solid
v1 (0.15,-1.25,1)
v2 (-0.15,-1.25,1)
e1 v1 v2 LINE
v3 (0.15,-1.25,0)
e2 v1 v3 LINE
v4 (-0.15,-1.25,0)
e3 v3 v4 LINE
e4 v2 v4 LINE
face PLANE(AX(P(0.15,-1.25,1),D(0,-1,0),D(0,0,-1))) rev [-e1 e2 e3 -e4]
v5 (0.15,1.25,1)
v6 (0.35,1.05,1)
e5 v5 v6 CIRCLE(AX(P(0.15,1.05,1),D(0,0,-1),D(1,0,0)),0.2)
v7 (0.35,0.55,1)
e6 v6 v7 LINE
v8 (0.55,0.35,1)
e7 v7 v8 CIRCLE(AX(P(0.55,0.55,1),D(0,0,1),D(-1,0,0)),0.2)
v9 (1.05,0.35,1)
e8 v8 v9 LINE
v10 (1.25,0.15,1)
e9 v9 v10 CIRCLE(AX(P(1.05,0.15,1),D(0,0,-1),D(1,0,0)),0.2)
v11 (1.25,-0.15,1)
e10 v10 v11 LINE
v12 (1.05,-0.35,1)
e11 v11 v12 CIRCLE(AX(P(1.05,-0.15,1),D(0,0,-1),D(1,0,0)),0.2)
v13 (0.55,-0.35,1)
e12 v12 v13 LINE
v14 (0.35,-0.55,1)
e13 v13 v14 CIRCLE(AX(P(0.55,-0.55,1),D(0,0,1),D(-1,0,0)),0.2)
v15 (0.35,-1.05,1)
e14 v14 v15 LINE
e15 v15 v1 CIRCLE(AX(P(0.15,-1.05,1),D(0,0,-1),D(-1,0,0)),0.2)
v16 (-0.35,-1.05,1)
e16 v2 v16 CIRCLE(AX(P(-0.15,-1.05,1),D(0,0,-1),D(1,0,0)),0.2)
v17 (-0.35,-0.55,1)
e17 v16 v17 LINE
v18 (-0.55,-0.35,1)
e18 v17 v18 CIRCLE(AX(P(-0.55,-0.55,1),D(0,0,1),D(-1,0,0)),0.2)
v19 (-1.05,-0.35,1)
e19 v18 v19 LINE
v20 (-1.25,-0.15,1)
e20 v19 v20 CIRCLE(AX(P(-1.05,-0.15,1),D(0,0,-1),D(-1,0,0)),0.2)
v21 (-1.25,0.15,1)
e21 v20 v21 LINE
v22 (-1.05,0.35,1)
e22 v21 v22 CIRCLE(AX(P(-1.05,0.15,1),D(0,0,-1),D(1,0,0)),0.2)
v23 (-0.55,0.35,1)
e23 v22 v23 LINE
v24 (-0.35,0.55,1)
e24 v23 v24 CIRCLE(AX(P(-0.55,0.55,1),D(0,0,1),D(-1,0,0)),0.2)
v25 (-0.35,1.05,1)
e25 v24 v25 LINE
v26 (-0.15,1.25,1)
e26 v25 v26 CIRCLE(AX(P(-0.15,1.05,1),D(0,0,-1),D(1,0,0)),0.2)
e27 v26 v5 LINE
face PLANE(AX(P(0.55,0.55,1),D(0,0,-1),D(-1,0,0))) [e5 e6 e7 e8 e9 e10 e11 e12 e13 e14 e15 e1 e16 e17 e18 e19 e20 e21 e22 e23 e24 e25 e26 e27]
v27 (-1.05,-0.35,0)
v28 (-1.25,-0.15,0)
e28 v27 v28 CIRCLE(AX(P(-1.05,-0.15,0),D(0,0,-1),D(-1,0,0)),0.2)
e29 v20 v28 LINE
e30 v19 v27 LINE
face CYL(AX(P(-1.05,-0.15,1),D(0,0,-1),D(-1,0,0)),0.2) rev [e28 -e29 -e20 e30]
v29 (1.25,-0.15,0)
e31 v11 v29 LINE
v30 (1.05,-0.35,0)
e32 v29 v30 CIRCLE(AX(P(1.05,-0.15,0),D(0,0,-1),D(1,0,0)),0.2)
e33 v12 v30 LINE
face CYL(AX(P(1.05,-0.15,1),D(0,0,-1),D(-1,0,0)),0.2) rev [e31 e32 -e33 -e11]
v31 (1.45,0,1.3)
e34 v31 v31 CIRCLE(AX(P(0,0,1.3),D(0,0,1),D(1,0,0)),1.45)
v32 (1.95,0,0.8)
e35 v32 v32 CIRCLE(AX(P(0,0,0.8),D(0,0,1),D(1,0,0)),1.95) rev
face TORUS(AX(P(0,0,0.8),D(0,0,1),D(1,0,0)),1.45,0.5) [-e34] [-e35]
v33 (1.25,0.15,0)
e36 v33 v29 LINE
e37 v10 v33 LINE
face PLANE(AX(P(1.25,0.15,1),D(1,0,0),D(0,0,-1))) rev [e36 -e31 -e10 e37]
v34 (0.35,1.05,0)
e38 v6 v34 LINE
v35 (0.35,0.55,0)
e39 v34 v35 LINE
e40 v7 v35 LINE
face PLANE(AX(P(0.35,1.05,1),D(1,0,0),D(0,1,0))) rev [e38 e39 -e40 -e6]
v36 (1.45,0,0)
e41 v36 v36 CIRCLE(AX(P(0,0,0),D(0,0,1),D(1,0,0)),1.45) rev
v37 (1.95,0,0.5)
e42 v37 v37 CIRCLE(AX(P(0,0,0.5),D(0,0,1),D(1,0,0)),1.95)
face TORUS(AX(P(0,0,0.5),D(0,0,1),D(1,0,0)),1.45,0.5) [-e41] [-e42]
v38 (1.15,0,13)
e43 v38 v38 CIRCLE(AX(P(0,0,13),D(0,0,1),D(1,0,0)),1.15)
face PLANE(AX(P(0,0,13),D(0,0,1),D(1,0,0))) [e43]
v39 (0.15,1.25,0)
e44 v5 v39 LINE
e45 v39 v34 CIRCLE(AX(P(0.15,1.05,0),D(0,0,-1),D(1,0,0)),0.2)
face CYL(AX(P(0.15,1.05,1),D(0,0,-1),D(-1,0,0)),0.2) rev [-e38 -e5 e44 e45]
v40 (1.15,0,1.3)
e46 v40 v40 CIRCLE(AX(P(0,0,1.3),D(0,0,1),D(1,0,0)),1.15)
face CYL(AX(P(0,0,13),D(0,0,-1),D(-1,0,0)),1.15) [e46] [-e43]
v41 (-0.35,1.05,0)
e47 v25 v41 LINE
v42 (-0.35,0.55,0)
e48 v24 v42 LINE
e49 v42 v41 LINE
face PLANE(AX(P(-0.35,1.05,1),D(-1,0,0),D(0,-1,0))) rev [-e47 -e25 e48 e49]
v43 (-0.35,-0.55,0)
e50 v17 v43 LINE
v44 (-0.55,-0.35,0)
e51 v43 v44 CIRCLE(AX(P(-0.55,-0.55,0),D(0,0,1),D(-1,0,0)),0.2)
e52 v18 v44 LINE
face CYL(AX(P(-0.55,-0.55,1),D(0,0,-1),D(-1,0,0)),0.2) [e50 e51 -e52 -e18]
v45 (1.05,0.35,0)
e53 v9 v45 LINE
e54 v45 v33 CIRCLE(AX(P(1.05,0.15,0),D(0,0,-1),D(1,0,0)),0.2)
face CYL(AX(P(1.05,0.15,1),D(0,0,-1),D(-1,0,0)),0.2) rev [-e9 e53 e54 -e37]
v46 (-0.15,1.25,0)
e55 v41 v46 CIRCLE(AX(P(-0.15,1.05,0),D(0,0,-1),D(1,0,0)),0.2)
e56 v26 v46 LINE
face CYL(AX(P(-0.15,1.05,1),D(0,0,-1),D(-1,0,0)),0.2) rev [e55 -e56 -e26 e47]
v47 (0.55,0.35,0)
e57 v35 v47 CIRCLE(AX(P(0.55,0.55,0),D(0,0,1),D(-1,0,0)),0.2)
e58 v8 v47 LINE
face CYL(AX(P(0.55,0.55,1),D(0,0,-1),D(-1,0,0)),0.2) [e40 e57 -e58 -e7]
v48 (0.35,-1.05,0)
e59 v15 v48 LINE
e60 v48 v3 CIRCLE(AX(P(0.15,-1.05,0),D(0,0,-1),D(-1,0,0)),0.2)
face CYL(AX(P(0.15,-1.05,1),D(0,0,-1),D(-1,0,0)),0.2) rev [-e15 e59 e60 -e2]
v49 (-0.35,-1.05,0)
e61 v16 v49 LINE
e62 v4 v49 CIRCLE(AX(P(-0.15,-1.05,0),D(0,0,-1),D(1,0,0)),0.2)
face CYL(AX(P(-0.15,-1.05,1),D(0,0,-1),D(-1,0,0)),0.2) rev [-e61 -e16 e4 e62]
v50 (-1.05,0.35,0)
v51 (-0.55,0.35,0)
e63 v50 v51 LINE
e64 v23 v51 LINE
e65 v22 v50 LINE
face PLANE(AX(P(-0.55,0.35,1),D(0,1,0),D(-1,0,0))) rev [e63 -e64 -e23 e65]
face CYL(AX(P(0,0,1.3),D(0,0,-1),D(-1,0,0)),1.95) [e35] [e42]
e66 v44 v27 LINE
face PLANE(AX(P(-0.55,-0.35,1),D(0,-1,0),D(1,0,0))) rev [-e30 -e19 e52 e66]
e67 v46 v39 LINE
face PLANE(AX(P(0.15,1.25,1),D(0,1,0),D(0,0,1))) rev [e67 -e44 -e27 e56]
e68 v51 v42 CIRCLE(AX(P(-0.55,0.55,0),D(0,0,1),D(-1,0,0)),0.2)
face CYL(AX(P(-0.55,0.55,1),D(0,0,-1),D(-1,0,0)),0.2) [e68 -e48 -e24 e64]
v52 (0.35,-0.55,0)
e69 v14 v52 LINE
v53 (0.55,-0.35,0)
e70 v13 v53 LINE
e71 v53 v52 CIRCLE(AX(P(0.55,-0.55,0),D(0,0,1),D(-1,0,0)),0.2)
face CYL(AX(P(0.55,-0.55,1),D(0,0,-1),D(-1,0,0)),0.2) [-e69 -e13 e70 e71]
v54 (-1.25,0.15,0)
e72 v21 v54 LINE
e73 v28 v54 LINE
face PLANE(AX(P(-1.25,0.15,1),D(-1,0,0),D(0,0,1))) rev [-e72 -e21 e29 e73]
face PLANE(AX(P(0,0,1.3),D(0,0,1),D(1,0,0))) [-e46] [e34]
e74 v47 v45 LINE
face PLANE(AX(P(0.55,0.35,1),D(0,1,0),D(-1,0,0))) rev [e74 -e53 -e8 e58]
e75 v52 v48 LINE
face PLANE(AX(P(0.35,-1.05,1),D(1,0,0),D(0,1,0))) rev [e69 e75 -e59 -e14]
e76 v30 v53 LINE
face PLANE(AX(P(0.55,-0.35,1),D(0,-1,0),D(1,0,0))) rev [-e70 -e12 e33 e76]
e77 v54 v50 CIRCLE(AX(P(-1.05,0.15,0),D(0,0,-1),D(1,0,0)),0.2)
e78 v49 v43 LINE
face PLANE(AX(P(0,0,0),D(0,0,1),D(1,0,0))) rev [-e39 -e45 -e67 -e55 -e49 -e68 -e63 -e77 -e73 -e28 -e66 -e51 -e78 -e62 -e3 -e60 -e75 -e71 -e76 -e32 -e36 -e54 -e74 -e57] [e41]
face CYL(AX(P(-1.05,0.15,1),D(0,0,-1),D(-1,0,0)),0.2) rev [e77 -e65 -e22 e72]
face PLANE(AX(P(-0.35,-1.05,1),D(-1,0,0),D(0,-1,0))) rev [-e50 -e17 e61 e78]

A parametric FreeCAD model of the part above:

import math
import FreeCAD as App
import Part
import Sketcher

V = App.Vector


def edges_at(feature, points):
    """Names of the edges that pass closest to the given points."""
    edges = feature.Shape.Edges
    near = lambda p: min(range(len(edges)), key=lambda i: edges[i].distToShape(Part.Vertex(*p))[0])
    return sorted({f"Edge{near(p) + 1}" for p in points})

doc = App.newDocument("Part")
body = doc.addObject("PartDesign::Body", "Body")

# Sketch on XY plane
sketch1 = body.newObject("Sketcher::SketchObject", "Sketch")
sketch1.AttachmentSupport = (doc.getObject("XY_Plane"), [""])
sketch1.MapMode = "FlatFace"
sketch1.addGeometry(Part.Circle(V(0, 0, 0), V(0, 0, 1), 1.9), False)
sketch1.addConstraint(Sketcher.Constraint("Coincident", 0, 3, -1, 1))
sketch1.addConstraint(Sketcher.Constraint("Diameter", 0, 3.9))
pad1 = body.newObject("PartDesign::Pad", "Pad")
pad1.Profile = sketch1
pad1.Length = 1.3

# Sketch on XY plane
sketch2 = body.newObject("Sketcher::SketchObject", "Sketch001")
sketch2.AttachmentSupport = (doc.getObject("XY_Plane"), [""])
sketch2.MapMode = "FlatFace"
sketch2.addGeometry(Part.LineSegment(V(-0.15, 1.25, 0), V(0.15, 1.25, 0)), False)
sketch2.addGeometry(Part.ArcOfCircle(Part.Circle(V(0.15, 1.05, 0), V(0, 0, 1), 0.2), math.radians(0), math.radians(90)), False)
sketch2.addGeometry(Part.LineSegment(V(0.35, 1.05, 0), V(0.35, 0.55, 0)), False)
sketch2.addGeometry(Part.ArcOfCircle(Part.Circle(V(0.55, 0.55, 0), V(0, 0, 1), 0.2), math.radians(-180), math.radians(-90)), False)
sketch2.addGeometry(Part.LineSegment(V(0.55, 0.35, 0), V(1.05, 0.35, 0)), False)
sketch2.addGeometry(Part.ArcOfCircle(Part.Circle(V(1.05, 0.15, 0), V(0, 0, 1), 0.2), math.radians(0), math.radians(90)), False)
sketch2.addGeometry(Part.LineSegment(V(1.25, 0.15, 0), V(1.25, -0.15, 0)), False)
sketch2.addGeometry(Part.ArcOfCircle(Part.Circle(V(1.05, -0.15, 0), V(0, 0, 1), 0.2), math.radians(-90), math.radians(0)), False)
sketch2.addGeometry(Part.LineSegment(V(1.05, -0.35, 0), V(0.55, -0.35, 0)), False)
sketch2.addGeometry(Part.ArcOfCircle(Part.Circle(V(0.55, -0.55, 0), V(0, 0, 1), 0.2), math.radians(90), math.radians(180)), False)
sketch2.addGeometry(Part.LineSegment(V(0.35, -0.55, 0), V(0.35, -1.05, 0)), False)
sketch2.addGeometry(Part.ArcOfCircle(Part.Circle(V(0.15, -1.05, 0), V(0, 0, 1), 0.2), math.radians(-90), math.radians(0)), False)
sketch2.addGeometry(Part.LineSegment(V(0.15, -1.25, 0), V(-0.15, -1.25, 0)), False)
sketch2.addGeometry(Part.ArcOfCircle(Part.Circle(V(-0.15, -1.05, 0), V(0, 0, 1), 0.2), math.radians(-180), math.radians(-90)), False)
sketch2.addGeometry(Part.LineSegment(V(-0.35, -1.05, 0), V(-0.35, -0.55, 0)), False)
sketch2.addGeometry(Part.ArcOfCircle(Part.Circle(V(-0.55, -0.55, 0), V(0, 0, 1), 0.2), math.radians(0), math.radians(90)), False)
sketch2.addGeometry(Part.LineSegment(V(-0.55, -0.35, 0), V(-1.05, -0.35, 0)), False)
sketch2.addGeometry(Part.ArcOfCircle(Part.Circle(V(-1.05, -0.15, 0), V(0, 0, 1), 0.2), math.radians(-180), math.radians(-90)), False)
sketch2.addGeometry(Part.LineSegment(V(-1.25, -0.15, 0), V(-1.25, 0.15, 0)), False)
sketch2.addGeometry(Part.ArcOfCircle(Part.Circle(V(-1.05, 0.15, 0), V(0, 0, 1), 0.2), math.radians(90), math.radians(180)), False)
sketch2.addGeometry(Part.LineSegment(V(-1.05, 0.35, 0), V(-0.55, 0.35, 0)), False)
sketch2.addGeometry(Part.ArcOfCircle(Part.Circle(V(-0.55, 0.55, 0), V(0, 0, 1), 0.2), math.radians(-90), math.radians(0)), False)
sketch2.addGeometry(Part.LineSegment(V(-0.35, 0.55, 0), V(-0.35, 1.05, 0)), False)
sketch2.addGeometry(Part.ArcOfCircle(Part.Circle(V(-0.15, 1.05, 0), V(0, 0, 1), 0.2), math.radians(90), math.radians(180)), False)
sketch2.addConstraint(Sketcher.Constraint("Tangent", 0, 2, 1, 2))
sketch2.addConstraint(Sketcher.Constraint("Tangent", 1, 1, 2, 1))
sketch2.addConstraint(Sketcher.Constraint("Tangent", 2, 2, 3, 1))
sketch2.addConstraint(Sketcher.Constraint("Tangent", 3, 2, 4, 1))
sketch2.addConstraint(Sketcher.Constraint("Tangent", 4, 2, 5, 2))
sketch2.addConstraint(Sketcher.Constraint("Tangent", 5, 1, 6, 1))
sketch2.addConstraint(Sketcher.Constraint("Tangent", 6, 2, 7, 2))
sketch2.addConstraint(Sketcher.Constraint("Tangent", 7, 1, 8, 1))
sketch2.addConstraint(Sketcher.Constraint("Tangent", 8, 2, 9, 1))
sketch2.addConstraint(Sketcher.Constraint("Tangent", 9, 2, 10, 1))
sketch2.addConstraint(Sketcher.Constraint("Tangent", 10, 2, 11, 2))
sketch2.addConstraint(Sketcher.Constraint("Tangent", 11, 1, 12, 1))
sketch2.addConstraint(Sketcher.Constraint("Tangent", 12, 2, 13, 2))
sketch2.addConstraint(Sketcher.Constraint("Tangent", 13, 1, 14, 1))
sketch2.addConstraint(Sketcher.Constraint("Tangent", 14, 2, 15, 1))
sketch2.addConstraint(Sketcher.Constraint("Tangent", 15, 2, 16, 1))
sketch2.addConstraint(Sketcher.Constraint("Tangent", 16, 2, 17, 2))
sketch2.addConstraint(Sketcher.Constraint("Tangent", 17, 1, 18, 1))
sketch2.addConstraint(Sketcher.Constraint("Tangent", 18, 2, 19, 2))
sketch2.addConstraint(Sketcher.Constraint("Tangent", 19, 1, 20, 1))
sketch2.addConstraint(Sketcher.Constraint("Tangent", 20, 2, 21, 1))
sketch2.addConstraint(Sketcher.Constraint("Tangent", 21, 2, 22, 1))
sketch2.addConstraint(Sketcher.Constraint("Tangent", 22, 2, 23, 2))
sketch2.addConstraint(Sketcher.Constraint("Tangent", 23, 1, 0, 1))
sketch2.addConstraint(Sketcher.Constraint("Horizontal", 0))
sketch2.addConstraint(Sketcher.Constraint("Vertical", 2))
sketch2.addConstraint(Sketcher.Constraint("Horizontal", 4))
sketch2.addConstraint(Sketcher.Constraint("Vertical", 6))
sketch2.addConstraint(Sketcher.Constraint("Horizontal", 8))
sketch2.addConstraint(Sketcher.Constraint("Vertical", 10))
sketch2.addConstraint(Sketcher.Constraint("Horizontal", 12))
sketch2.addConstraint(Sketcher.Constraint("Vertical", 14))
sketch2.addConstraint(Sketcher.Constraint("Horizontal", 16))
sketch2.addConstraint(Sketcher.Constraint("Vertical", 18))
sketch2.addConstraint(Sketcher.Constraint("Horizontal", 20))
sketch2.addConstraint(Sketcher.Constraint("Vertical", 22))
sketch2.addConstraint(Sketcher.Constraint("Equal", 1, 3))
sketch2.addConstraint(Sketcher.Constraint("Equal", 3, 5))
sketch2.addConstraint(Sketcher.Constraint("Equal", 5, 7))
sketch2.addConstraint(Sketcher.Constraint("Equal", 7, 9))
sketch2.addConstraint(Sketcher.Constraint("Equal", 9, 11))
sketch2.addConstraint(Sketcher.Constraint("Equal", 11, 13))
sketch2.addConstraint(Sketcher.Constraint("Equal", 13, 15))
sketch2.addConstraint(Sketcher.Constraint("Equal", 15, 17))
sketch2.addConstraint(Sketcher.Constraint("Equal", 17, 19))
sketch2.addConstraint(Sketcher.Constraint("Equal", 19, 21))
sketch2.addConstraint(Sketcher.Constraint("Equal", 21, 23))
sketch2.addConstraint(Sketcher.Constraint("Symmetric", 1, 3, 13, 3, -1, 1))
sketch2.addConstraint(Sketcher.Constraint("Symmetric", 5, 3, 17, 3, -1, 1))
sketch2.addConstraint(Sketcher.Constraint("Symmetric", 9, 3, 21, 3, -1, 1))
sketch2.addConstraint(Sketcher.Constraint("Symmetric", 9, 3, 15, 3, -2))
sketch2.addConstraint(Sketcher.Constraint("Equal", 20, 2))
sketch2.addConstraint(Sketcher.Constraint("Equal", 12, 6))
sketch2.addConstraint(Sketcher.Constraint("Radius", 1, 0.2))
sketch2.addConstraint(Sketcher.Constraint("DistanceX", 0, 1, 0, 2, 0.3))
sketch2.addConstraint(Sketcher.Constraint("DistanceX", 4, 1, 4, 2, 0.5))
pocket1 = body.newObject("PartDesign::Pocket", "Pocket")
pocket1.Profile = sketch2
pocket1.Length = 1
pocket1.Reversed = True

# Sketch on XY plane
sketch3 = body.newObject("Sketcher::SketchObject", "Sketch002")
sketch3.AttachmentSupport = (doc.getObject("XY_Plane"), [""])
sketch3.MapMode = "FlatFace"
sketch3.AttachmentOffset = App.Placement(V(0, 0, 1.3), App.Rotation())
sketch3.addGeometry(Part.Circle(V(0, 0, 0), V(0, 0, 1), 1.1), False)
sketch3.addConstraint(Sketcher.Constraint("Coincident", 0, 3, -1, 1))
sketch3.addConstraint(Sketcher.Constraint("Diameter", 0, 2.3))
pad2 = body.newObject("PartDesign::Pad", "Pad001")
pad2.Profile = sketch3
pad2.Length = 11.7
doc.recompute()

fillet = body.newObject("PartDesign::Fillet", "Fillet")
fillet.Base = (pad2, edges_at(pad2, [(-1.95, 0, 0), (-1.95, 0, 1.3)]))
fillet.Radius = 0.5

doc.recompute()
